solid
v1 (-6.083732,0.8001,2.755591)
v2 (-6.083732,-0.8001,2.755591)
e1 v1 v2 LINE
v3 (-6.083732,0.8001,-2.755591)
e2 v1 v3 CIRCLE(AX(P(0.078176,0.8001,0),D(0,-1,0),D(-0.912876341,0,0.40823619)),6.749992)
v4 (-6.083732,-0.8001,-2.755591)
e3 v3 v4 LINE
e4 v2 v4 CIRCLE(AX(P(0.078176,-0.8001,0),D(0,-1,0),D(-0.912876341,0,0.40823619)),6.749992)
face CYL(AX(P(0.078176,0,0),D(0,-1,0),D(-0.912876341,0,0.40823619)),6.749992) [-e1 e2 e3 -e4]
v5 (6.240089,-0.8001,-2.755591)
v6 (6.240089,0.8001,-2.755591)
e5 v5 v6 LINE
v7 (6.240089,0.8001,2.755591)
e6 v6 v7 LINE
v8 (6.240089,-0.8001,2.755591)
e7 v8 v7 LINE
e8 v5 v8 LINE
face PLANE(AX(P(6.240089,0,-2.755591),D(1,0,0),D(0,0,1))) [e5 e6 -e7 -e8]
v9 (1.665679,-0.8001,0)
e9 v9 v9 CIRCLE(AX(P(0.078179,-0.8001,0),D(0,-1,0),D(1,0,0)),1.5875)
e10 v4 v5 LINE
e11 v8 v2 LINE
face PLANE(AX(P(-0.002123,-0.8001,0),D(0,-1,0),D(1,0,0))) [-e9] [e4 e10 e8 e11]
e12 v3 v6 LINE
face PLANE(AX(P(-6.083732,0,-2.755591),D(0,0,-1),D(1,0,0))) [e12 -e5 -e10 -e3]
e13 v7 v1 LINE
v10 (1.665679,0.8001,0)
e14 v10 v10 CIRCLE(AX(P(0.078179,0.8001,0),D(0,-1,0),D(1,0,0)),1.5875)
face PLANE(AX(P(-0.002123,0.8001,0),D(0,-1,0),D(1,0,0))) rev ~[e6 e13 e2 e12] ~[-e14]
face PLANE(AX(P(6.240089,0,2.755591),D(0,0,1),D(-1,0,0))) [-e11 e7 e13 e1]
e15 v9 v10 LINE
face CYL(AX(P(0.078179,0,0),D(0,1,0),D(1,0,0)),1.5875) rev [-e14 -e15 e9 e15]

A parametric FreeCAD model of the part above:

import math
import FreeCAD as App
import Part
import Sketcher

V = App.Vector
Q = App.Units.Quantity

doc = App.newDocument("Part")
params = doc.addObject("Spreadsheet::Sheet", "Params")
for row, (alias, value) in enumerate([
    ("sketch1_diameter", "0.125 in"),
    ("pad1_length", "0.063 in"),
], start=1):
    params.set(f"A{row}", alias)
    params.set(f"B{row}", "=" + value)
    params.setAlias(f"B{row}", alias)

body = doc.addObject("PartDesign::Body", "Body")

sketch1 = body.newObject("Sketcher::SketchObject", "Sketch")
sketch1.AttachmentSupport = (doc.getObject("XZ_Plane"), [""])
sketch1.MapMode = "FlatFace"
sketch1.addGeometry([
    Part.LineSegment(V(6.2, 2.8, 0), V(-6.1, 2.8, 0)),
    Part.ArcOfCircle(Part.Circle(V(0.1, 0, 0), V(0, 0, 1), 6.7), math.radians(156), math.radians(204)),
    Part.LineSegment(V(-6.1, -2.8, 0), V(6.2, -2.8, 0)),
    Part.LineSegment(V(6.2, -2.8, 0), V(6.2, 2.8, 0)),
    Part.Circle(V(0.1, 0, 0), V(0, 0, 1), 1.6),
], False)
sketch1.addConstraint([
    Sketcher.Constraint("Coincident", 0, 2, 1, 1),
    Sketcher.Constraint("Coincident", 1, 2, 2, 1),
    Sketcher.Constraint("Coincident", 2, 2, 3, 1),
    Sketcher.Constraint("Coincident", 3, 2, 0, 1),
    Sketcher.Constraint("Horizontal", 0),
    Sketcher.Constraint("Horizontal", 2),
    Sketcher.Constraint("Vertical", 3),
    Sketcher.Constraint("Coincident", 4, 3, 1, 3),
    Sketcher.Constraint("Symmetric", 0, 2, 1, 2, -1),
    Sketcher.Constraint("Diameter", 4, Q("0.125 in")),
    Sketcher.Constraint("Radius", 1, 6.749992),
    Sketcher.Constraint("DistanceX", 0, 2, 0, 1, 12.323821),
    Sketcher.Constraint("DistanceY", 3, 1, 3, 2, 5.511182),
    Sketcher.Constraint("DistanceX", -1, 1, 4, 3, 0.078179),
])
sketch1.setExpression("Constraints[9]", "Params.sketch1_diameter")
pad1 = body.newObject("PartDesign::Pad", "Pad")
pad1.Profile = sketch1
pad1.setExpression("Length", "Params.pad1_length")
pad1.Midplane = True

doc.recompute()
